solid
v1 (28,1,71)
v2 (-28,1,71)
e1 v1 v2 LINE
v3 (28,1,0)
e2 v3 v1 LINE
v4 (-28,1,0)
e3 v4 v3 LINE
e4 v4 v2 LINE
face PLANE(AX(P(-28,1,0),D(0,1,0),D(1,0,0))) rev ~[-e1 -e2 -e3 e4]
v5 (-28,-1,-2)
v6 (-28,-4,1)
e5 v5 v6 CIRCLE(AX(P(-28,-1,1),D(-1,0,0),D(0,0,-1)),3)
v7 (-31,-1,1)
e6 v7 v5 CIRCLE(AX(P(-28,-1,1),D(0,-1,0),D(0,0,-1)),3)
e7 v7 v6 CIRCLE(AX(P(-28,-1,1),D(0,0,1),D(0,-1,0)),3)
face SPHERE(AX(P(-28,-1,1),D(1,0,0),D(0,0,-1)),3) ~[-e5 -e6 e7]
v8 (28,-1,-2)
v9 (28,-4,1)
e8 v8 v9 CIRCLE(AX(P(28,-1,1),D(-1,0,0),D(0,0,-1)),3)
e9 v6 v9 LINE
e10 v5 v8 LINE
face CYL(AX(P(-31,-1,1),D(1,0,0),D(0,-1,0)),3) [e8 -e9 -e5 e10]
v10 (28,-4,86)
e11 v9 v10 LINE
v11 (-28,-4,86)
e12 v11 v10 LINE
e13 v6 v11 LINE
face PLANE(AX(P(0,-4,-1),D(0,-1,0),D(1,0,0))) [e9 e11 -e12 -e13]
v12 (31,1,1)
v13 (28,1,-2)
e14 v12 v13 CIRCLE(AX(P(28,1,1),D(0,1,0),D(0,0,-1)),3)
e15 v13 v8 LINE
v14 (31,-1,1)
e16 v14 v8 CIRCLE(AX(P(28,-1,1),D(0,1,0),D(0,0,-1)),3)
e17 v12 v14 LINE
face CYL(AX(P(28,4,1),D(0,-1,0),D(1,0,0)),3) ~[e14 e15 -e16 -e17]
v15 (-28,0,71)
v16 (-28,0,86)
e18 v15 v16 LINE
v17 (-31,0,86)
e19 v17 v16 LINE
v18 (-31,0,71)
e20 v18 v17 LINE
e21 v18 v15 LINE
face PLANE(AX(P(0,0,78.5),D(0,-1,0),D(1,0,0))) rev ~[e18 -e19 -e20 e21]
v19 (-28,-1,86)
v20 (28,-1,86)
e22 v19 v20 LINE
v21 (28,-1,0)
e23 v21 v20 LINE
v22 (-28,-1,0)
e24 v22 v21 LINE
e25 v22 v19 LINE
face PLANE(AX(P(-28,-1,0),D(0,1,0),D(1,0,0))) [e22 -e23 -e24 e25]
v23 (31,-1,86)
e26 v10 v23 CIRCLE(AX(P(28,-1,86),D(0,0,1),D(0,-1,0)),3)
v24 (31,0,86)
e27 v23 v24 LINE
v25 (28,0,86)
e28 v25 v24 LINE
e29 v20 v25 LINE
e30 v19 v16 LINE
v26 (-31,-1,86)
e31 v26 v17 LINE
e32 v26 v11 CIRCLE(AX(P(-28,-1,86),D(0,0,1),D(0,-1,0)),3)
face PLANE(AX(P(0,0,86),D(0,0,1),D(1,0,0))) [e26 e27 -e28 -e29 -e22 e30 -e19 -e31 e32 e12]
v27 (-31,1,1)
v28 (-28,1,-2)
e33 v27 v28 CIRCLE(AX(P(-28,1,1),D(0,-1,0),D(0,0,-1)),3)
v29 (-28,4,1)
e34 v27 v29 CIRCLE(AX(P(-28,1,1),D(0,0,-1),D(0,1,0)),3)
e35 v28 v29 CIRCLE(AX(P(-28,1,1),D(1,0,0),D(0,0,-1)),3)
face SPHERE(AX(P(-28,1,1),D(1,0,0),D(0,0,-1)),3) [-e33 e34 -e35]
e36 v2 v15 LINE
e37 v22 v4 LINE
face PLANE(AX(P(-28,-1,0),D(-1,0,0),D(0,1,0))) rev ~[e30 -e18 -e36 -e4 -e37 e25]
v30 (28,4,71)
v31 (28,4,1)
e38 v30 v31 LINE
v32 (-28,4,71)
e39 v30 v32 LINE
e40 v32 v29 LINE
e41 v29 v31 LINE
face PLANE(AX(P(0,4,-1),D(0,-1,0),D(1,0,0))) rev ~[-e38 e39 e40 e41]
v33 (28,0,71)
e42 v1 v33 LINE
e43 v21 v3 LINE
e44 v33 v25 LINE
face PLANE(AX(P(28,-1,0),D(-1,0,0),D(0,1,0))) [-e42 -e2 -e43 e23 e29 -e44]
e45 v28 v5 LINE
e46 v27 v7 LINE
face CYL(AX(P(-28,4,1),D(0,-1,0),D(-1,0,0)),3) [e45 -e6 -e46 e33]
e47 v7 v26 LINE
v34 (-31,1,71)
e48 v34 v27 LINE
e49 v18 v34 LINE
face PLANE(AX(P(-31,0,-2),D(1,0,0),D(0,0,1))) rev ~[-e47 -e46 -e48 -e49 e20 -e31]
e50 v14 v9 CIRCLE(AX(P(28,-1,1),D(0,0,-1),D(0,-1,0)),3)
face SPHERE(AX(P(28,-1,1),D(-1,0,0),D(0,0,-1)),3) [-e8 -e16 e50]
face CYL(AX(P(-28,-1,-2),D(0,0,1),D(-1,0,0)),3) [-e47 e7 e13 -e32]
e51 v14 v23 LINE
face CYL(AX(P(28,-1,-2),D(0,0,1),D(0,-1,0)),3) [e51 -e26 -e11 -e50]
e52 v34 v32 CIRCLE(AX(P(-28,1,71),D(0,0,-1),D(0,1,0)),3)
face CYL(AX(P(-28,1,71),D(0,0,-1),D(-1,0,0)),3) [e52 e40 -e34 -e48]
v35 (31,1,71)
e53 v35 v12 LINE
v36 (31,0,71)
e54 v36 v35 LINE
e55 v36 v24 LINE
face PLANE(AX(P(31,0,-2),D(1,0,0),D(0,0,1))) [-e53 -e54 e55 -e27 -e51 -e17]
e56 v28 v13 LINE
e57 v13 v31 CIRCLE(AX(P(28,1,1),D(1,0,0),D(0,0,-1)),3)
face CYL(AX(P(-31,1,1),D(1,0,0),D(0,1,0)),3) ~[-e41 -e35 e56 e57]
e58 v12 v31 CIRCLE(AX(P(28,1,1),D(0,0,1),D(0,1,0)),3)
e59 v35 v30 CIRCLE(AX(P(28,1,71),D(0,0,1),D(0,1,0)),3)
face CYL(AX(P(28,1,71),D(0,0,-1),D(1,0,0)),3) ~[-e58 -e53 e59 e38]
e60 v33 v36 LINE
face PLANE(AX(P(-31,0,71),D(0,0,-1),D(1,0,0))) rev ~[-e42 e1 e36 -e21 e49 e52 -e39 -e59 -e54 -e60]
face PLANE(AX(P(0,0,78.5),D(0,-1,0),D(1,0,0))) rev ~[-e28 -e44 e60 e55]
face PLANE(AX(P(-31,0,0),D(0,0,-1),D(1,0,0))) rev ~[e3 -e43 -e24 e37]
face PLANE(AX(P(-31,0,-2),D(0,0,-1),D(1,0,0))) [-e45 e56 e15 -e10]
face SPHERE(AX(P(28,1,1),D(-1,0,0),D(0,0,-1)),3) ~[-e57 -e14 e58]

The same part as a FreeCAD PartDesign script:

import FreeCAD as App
import Part
import Sketcher

V = App.Vector


def edges_at(feature, points):
    """Names of the edges that pass closest to the given points."""
    edges = feature.Shape.Edges
    near = lambda p: min(range(len(edges)), key=lambda i: edges[i].distToShape(Part.Vertex(*p))[0])
    return sorted({f"Edge{near(p) + 1}" for p in points})

doc = App.newDocument("Part")
params = doc.addObject("Spreadsheet::Sheet", "Params")
for row, (alias, value) in enumerate([
    ("sketch1_width", "62 mm"),
    ("sketch1_width2", "56 mm"),
    ("sketch1_height", "8 mm"),
    ("sketch1_height2", "2 mm"),
    ("pad1_length", "86 mm"),
    ("sketch2_width", "62 mm"),
    ("sketch2_height", "15 mm"),
    ("pocket1_length", "5 mm"),
    ("sketch3_width", "62 mm"),
    ("sketch3_height", "2 mm"),
    ("pad2_length", "8 mm"),
    ("fillet_radius", "3 mm"),
], start=1):
    params.set(f"A{row}", alias)
    params.set(f"B{row}", "=" + value)
    params.setAlias(f"B{row}", alias)

body = doc.addObject("PartDesign::Body", "Body")

# Sketch on XY plane
sketch1 = doc.addObject("Sketcher::SketchObject", "Sketch")
body.addObject(sketch1)
sketch1.AttachmentSupport = (doc.XY_Plane, [""])
sketch1.MapMode = "FlatFace"
sketch1.addGeometry(Part.LineSegment(V(-31, 4, 0), V(-31, -4, 0)), False)
sketch1.addGeometry(Part.LineSegment(V(-31, -4, 0), V(31, -4, 0)), False)
sketch1.addGeometry(Part.LineSegment(V(31, -4, 0), V(31, 4, 0)), False)
sketch1.addGeometry(Part.LineSegment(V(31, 4, 0), V(-31, 4, 0)), False)
sketch1.addGeometry(Part.LineSegment(V(28, -1, 0), V(-28, -1, 0)), False)
sketch1.addGeometry(Part.LineSegment(V(-28, -1, 0), V(-28, 1, 0)), False)
sketch1.addGeometry(Part.LineSegment(V(-28, 1, 0), V(28, 1, 0)), False)
sketch1.addGeometry(Part.LineSegment(V(28, 1, 0), V(28, -1, 0)), False)
sketch1.addConstraint(Sketcher.Constraint("Coincident", 0, 2, 1, 1))
sketch1.addConstraint(Sketcher.Constraint("Coincident", 1, 2, 2, 1))
sketch1.addConstraint(Sketcher.Constraint("Coincident", 2, 2, 3, 1))
sketch1.addConstraint(Sketcher.Constraint("Coincident", 3, 2, 0, 1))
sketch1.addConstraint(Sketcher.Constraint("Coincident", 4, 2, 5, 1))
sketch1.addConstraint(Sketcher.Constraint("Coincident", 5, 2, 6, 1))
sketch1.addConstraint(Sketcher.Constraint("Coincident", 6, 2, 7, 1))
sketch1.addConstraint(Sketcher.Constraint("Coincident", 7, 2, 4, 1))
sketch1.addConstraint(Sketcher.Constraint("Vertical", 0))
sketch1.addConstraint(Sketcher.Constraint("Horizontal", 1))
sketch1.addConstraint(Sketcher.Constraint("Vertical", 2))
sketch1.addConstraint(Sketcher.Constraint("Horizontal", 3))
sketch1.addConstraint(Sketcher.Constraint("Horizontal", 4))
sketch1.addConstraint(Sketcher.Constraint("Vertical", 5))
sketch1.addConstraint(Sketcher.Constraint("Horizontal", 6))
sketch1.addConstraint(Sketcher.Constraint("Vertical", 7))
sketch1.addConstraint(Sketcher.Constraint("Symmetric", 0, 2, 2, 2, -1, 1))
sketch1.addConstraint(Sketcher.Constraint("Symmetric", 4, 2, 6, 2, -1, 1))
sketch1.addConstraint(Sketcher.Constraint("DistanceX", 1, 1, 1, 2, 62.0))
sketch1.addConstraint(Sketcher.Constraint("DistanceX", 4, 2, 4, 1, 56.0))
sketch1.addConstraint(Sketcher.Constraint("DistanceY", 0, 2, 0, 1, 8.0))
sketch1.addConstraint(Sketcher.Constraint("DistanceY", 5, 1, 5, 2, 2.0))
sketch1.setExpression("Constraints[18]", "Params.sketch1_width")
sketch1.setExpression("Constraints[19]", "Params.sketch1_width2")
sketch1.setExpression("Constraints[20]", "Params.sketch1_height")
sketch1.setExpression("Constraints[21]", "Params.sketch1_height2")
pad1 = doc.addObject("PartDesign::Pad", "Pad")
body.addObject(pad1)
pad1.Profile = sketch1
pad1.setExpression("Length", "Params.pad1_length")

# Sketch on XZ plane
sketch2 = doc.addObject("Sketcher::SketchObject", "Sketch001")
body.addObject(sketch2)
sketch2.AttachmentSupport = (doc.XZ_Plane, [""])
sketch2.MapMode = "FlatFace"
sketch2.addGeometry(Part.LineSegment(V(-31, 86, 0), V(-31, 71, 0)), False)
sketch2.addGeometry(Part.LineSegment(V(-31, 71, 0), V(31, 71, 0)), False)
sketch2.addGeometry(Part.LineSegment(V(31, 71, 0), V(31, 86, 0)), False)
sketch2.addGeometry(Part.LineSegment(V(31, 86, 0), V(-31, 86, 0)), False)
sketch2.addConstraint(Sketcher.Constraint("Coincident", 0, 2, 1, 1))
sketch2.addConstraint(Sketcher.Constraint("Coincident", 1, 2, 2, 1))
sketch2.addConstraint(Sketcher.Constraint("Coincident", 2, 2, 3, 1))
sketch2.addConstraint(Sketcher.Constraint("Coincident", 3, 2, 0, 1))
sketch2.addConstraint(Sketcher.Constraint("Vertical", 0))
sketch2.addConstraint(Sketcher.Constraint("Horizontal", 1))
sketch2.addConstraint(Sketcher.Constraint("Vertical", 2))
sketch2.addConstraint(Sketcher.Constraint("Horizontal", 3))
sketch2.addConstraint(Sketcher.Constraint("DistanceX", 1, 1, 1, 2, 62.0))
sketch2.addConstraint(Sketcher.Constraint("DistanceY", 0, 2, 0, 1, 15.0))
sketch2.addConstraint(Sketcher.Constraint("DistanceX", 0, 2, -1, 1, 31.0))
sketch2.addConstraint(Sketcher.Constraint("DistanceY", -1, 1, 0, 2, 71.0))
sketch2.setExpression("Constraints[8]", "Params.sketch2_width")
sketch2.setExpression("Constraints[9]", "Params.sketch2_height")
pocket1 = doc.addObject("PartDesign::Pocket", "Pocket")
body.addObject(pocket1)
pocket1.Profile = sketch2
pocket1.setExpression("Length", "Params.pocket1_length")

# Sketch on XZ plane
sketch3 = doc.addObject("Sketcher::SketchObject", "Sketch002")
body.addObject(sketch3)
sketch3.AttachmentSupport = (doc.XZ_Plane, [""])
sketch3.MapMode = "FlatFace"
sketch3.addGeometry(Part.LineSegment(V(-31, 0, 0), V(-31, -2, 0)), False)
sketch3.addGeometry(Part.LineSegment(V(-31, -2, 0), V(31, -2, 0)), False)
sketch3.addGeometry(Part.LineSegment(V(31, -2, 0), V(31, 0, 0)), False)
sketch3.addGeometry(Part.LineSegment(V(31, 0, 0), V(-31, 0, 0)), False)
sketch3.addConstraint(Sketcher.Constraint("Coincident", 0, 2, 1, 1))
sketch3.addConstraint(Sketcher.Constraint("Coincident", 1, 2, 2, 1))
sketch3.addConstraint(Sketcher.Constraint("Coincident", 2, 2, 3, 1))
sketch3.addConstraint(Sketcher.Constraint("Coincident", 3, 2, 0, 1))
sketch3.addConstraint(Sketcher.Constraint("Vertical", 0))
sketch3.addConstraint(Sketcher.Constraint("Horizontal", 1))
sketch3.addConstraint(Sketcher.Constraint("Vertical", 2))
sketch3.addConstraint(Sketcher.Constraint("Horizontal", 3))
sketch3.addConstraint(Sketcher.Constraint("Symmetric", 2, 2, 3, 2, -1, 1))
sketch3.addConstraint(Sketcher.Constraint("DistanceX", 1, 1, 1, 2, 62.0))
sketch3.addConstraint(Sketcher.Constraint("DistanceY", 0, 2, 0, 1, 2.0))
sketch3.setExpression("Constraints[9]", "Params.sketch3_width")
sketch3.setExpression("Constraints[10]", "Params.sketch3_height")
pad2 = doc.addObject("PartDesign::Pad", "Pad001")
body.addObject(pad2)
pad2.Profile = sketch3
pad2.setExpression("Length", "Params.pad2_length")
pad2.Midplane = True
doc.recompute()

fillet = doc.addObject("PartDesign::Fillet", "Fillet")
body.addObject(fillet)
fillet.Base = (pad2, edges_at(pad2, [
    (0, 4, -2),
    (0, -4, -2),
    (31, 0, -2),
    (-31, 0, -2),
    (31, 4, 34.5),
    (31, -4, 42),
    (-31, 4, 34.5),
    (-31, -4, 42),
]))
fillet.setExpression("Radius", "Params.fillet_radius")

doc.recompute()
